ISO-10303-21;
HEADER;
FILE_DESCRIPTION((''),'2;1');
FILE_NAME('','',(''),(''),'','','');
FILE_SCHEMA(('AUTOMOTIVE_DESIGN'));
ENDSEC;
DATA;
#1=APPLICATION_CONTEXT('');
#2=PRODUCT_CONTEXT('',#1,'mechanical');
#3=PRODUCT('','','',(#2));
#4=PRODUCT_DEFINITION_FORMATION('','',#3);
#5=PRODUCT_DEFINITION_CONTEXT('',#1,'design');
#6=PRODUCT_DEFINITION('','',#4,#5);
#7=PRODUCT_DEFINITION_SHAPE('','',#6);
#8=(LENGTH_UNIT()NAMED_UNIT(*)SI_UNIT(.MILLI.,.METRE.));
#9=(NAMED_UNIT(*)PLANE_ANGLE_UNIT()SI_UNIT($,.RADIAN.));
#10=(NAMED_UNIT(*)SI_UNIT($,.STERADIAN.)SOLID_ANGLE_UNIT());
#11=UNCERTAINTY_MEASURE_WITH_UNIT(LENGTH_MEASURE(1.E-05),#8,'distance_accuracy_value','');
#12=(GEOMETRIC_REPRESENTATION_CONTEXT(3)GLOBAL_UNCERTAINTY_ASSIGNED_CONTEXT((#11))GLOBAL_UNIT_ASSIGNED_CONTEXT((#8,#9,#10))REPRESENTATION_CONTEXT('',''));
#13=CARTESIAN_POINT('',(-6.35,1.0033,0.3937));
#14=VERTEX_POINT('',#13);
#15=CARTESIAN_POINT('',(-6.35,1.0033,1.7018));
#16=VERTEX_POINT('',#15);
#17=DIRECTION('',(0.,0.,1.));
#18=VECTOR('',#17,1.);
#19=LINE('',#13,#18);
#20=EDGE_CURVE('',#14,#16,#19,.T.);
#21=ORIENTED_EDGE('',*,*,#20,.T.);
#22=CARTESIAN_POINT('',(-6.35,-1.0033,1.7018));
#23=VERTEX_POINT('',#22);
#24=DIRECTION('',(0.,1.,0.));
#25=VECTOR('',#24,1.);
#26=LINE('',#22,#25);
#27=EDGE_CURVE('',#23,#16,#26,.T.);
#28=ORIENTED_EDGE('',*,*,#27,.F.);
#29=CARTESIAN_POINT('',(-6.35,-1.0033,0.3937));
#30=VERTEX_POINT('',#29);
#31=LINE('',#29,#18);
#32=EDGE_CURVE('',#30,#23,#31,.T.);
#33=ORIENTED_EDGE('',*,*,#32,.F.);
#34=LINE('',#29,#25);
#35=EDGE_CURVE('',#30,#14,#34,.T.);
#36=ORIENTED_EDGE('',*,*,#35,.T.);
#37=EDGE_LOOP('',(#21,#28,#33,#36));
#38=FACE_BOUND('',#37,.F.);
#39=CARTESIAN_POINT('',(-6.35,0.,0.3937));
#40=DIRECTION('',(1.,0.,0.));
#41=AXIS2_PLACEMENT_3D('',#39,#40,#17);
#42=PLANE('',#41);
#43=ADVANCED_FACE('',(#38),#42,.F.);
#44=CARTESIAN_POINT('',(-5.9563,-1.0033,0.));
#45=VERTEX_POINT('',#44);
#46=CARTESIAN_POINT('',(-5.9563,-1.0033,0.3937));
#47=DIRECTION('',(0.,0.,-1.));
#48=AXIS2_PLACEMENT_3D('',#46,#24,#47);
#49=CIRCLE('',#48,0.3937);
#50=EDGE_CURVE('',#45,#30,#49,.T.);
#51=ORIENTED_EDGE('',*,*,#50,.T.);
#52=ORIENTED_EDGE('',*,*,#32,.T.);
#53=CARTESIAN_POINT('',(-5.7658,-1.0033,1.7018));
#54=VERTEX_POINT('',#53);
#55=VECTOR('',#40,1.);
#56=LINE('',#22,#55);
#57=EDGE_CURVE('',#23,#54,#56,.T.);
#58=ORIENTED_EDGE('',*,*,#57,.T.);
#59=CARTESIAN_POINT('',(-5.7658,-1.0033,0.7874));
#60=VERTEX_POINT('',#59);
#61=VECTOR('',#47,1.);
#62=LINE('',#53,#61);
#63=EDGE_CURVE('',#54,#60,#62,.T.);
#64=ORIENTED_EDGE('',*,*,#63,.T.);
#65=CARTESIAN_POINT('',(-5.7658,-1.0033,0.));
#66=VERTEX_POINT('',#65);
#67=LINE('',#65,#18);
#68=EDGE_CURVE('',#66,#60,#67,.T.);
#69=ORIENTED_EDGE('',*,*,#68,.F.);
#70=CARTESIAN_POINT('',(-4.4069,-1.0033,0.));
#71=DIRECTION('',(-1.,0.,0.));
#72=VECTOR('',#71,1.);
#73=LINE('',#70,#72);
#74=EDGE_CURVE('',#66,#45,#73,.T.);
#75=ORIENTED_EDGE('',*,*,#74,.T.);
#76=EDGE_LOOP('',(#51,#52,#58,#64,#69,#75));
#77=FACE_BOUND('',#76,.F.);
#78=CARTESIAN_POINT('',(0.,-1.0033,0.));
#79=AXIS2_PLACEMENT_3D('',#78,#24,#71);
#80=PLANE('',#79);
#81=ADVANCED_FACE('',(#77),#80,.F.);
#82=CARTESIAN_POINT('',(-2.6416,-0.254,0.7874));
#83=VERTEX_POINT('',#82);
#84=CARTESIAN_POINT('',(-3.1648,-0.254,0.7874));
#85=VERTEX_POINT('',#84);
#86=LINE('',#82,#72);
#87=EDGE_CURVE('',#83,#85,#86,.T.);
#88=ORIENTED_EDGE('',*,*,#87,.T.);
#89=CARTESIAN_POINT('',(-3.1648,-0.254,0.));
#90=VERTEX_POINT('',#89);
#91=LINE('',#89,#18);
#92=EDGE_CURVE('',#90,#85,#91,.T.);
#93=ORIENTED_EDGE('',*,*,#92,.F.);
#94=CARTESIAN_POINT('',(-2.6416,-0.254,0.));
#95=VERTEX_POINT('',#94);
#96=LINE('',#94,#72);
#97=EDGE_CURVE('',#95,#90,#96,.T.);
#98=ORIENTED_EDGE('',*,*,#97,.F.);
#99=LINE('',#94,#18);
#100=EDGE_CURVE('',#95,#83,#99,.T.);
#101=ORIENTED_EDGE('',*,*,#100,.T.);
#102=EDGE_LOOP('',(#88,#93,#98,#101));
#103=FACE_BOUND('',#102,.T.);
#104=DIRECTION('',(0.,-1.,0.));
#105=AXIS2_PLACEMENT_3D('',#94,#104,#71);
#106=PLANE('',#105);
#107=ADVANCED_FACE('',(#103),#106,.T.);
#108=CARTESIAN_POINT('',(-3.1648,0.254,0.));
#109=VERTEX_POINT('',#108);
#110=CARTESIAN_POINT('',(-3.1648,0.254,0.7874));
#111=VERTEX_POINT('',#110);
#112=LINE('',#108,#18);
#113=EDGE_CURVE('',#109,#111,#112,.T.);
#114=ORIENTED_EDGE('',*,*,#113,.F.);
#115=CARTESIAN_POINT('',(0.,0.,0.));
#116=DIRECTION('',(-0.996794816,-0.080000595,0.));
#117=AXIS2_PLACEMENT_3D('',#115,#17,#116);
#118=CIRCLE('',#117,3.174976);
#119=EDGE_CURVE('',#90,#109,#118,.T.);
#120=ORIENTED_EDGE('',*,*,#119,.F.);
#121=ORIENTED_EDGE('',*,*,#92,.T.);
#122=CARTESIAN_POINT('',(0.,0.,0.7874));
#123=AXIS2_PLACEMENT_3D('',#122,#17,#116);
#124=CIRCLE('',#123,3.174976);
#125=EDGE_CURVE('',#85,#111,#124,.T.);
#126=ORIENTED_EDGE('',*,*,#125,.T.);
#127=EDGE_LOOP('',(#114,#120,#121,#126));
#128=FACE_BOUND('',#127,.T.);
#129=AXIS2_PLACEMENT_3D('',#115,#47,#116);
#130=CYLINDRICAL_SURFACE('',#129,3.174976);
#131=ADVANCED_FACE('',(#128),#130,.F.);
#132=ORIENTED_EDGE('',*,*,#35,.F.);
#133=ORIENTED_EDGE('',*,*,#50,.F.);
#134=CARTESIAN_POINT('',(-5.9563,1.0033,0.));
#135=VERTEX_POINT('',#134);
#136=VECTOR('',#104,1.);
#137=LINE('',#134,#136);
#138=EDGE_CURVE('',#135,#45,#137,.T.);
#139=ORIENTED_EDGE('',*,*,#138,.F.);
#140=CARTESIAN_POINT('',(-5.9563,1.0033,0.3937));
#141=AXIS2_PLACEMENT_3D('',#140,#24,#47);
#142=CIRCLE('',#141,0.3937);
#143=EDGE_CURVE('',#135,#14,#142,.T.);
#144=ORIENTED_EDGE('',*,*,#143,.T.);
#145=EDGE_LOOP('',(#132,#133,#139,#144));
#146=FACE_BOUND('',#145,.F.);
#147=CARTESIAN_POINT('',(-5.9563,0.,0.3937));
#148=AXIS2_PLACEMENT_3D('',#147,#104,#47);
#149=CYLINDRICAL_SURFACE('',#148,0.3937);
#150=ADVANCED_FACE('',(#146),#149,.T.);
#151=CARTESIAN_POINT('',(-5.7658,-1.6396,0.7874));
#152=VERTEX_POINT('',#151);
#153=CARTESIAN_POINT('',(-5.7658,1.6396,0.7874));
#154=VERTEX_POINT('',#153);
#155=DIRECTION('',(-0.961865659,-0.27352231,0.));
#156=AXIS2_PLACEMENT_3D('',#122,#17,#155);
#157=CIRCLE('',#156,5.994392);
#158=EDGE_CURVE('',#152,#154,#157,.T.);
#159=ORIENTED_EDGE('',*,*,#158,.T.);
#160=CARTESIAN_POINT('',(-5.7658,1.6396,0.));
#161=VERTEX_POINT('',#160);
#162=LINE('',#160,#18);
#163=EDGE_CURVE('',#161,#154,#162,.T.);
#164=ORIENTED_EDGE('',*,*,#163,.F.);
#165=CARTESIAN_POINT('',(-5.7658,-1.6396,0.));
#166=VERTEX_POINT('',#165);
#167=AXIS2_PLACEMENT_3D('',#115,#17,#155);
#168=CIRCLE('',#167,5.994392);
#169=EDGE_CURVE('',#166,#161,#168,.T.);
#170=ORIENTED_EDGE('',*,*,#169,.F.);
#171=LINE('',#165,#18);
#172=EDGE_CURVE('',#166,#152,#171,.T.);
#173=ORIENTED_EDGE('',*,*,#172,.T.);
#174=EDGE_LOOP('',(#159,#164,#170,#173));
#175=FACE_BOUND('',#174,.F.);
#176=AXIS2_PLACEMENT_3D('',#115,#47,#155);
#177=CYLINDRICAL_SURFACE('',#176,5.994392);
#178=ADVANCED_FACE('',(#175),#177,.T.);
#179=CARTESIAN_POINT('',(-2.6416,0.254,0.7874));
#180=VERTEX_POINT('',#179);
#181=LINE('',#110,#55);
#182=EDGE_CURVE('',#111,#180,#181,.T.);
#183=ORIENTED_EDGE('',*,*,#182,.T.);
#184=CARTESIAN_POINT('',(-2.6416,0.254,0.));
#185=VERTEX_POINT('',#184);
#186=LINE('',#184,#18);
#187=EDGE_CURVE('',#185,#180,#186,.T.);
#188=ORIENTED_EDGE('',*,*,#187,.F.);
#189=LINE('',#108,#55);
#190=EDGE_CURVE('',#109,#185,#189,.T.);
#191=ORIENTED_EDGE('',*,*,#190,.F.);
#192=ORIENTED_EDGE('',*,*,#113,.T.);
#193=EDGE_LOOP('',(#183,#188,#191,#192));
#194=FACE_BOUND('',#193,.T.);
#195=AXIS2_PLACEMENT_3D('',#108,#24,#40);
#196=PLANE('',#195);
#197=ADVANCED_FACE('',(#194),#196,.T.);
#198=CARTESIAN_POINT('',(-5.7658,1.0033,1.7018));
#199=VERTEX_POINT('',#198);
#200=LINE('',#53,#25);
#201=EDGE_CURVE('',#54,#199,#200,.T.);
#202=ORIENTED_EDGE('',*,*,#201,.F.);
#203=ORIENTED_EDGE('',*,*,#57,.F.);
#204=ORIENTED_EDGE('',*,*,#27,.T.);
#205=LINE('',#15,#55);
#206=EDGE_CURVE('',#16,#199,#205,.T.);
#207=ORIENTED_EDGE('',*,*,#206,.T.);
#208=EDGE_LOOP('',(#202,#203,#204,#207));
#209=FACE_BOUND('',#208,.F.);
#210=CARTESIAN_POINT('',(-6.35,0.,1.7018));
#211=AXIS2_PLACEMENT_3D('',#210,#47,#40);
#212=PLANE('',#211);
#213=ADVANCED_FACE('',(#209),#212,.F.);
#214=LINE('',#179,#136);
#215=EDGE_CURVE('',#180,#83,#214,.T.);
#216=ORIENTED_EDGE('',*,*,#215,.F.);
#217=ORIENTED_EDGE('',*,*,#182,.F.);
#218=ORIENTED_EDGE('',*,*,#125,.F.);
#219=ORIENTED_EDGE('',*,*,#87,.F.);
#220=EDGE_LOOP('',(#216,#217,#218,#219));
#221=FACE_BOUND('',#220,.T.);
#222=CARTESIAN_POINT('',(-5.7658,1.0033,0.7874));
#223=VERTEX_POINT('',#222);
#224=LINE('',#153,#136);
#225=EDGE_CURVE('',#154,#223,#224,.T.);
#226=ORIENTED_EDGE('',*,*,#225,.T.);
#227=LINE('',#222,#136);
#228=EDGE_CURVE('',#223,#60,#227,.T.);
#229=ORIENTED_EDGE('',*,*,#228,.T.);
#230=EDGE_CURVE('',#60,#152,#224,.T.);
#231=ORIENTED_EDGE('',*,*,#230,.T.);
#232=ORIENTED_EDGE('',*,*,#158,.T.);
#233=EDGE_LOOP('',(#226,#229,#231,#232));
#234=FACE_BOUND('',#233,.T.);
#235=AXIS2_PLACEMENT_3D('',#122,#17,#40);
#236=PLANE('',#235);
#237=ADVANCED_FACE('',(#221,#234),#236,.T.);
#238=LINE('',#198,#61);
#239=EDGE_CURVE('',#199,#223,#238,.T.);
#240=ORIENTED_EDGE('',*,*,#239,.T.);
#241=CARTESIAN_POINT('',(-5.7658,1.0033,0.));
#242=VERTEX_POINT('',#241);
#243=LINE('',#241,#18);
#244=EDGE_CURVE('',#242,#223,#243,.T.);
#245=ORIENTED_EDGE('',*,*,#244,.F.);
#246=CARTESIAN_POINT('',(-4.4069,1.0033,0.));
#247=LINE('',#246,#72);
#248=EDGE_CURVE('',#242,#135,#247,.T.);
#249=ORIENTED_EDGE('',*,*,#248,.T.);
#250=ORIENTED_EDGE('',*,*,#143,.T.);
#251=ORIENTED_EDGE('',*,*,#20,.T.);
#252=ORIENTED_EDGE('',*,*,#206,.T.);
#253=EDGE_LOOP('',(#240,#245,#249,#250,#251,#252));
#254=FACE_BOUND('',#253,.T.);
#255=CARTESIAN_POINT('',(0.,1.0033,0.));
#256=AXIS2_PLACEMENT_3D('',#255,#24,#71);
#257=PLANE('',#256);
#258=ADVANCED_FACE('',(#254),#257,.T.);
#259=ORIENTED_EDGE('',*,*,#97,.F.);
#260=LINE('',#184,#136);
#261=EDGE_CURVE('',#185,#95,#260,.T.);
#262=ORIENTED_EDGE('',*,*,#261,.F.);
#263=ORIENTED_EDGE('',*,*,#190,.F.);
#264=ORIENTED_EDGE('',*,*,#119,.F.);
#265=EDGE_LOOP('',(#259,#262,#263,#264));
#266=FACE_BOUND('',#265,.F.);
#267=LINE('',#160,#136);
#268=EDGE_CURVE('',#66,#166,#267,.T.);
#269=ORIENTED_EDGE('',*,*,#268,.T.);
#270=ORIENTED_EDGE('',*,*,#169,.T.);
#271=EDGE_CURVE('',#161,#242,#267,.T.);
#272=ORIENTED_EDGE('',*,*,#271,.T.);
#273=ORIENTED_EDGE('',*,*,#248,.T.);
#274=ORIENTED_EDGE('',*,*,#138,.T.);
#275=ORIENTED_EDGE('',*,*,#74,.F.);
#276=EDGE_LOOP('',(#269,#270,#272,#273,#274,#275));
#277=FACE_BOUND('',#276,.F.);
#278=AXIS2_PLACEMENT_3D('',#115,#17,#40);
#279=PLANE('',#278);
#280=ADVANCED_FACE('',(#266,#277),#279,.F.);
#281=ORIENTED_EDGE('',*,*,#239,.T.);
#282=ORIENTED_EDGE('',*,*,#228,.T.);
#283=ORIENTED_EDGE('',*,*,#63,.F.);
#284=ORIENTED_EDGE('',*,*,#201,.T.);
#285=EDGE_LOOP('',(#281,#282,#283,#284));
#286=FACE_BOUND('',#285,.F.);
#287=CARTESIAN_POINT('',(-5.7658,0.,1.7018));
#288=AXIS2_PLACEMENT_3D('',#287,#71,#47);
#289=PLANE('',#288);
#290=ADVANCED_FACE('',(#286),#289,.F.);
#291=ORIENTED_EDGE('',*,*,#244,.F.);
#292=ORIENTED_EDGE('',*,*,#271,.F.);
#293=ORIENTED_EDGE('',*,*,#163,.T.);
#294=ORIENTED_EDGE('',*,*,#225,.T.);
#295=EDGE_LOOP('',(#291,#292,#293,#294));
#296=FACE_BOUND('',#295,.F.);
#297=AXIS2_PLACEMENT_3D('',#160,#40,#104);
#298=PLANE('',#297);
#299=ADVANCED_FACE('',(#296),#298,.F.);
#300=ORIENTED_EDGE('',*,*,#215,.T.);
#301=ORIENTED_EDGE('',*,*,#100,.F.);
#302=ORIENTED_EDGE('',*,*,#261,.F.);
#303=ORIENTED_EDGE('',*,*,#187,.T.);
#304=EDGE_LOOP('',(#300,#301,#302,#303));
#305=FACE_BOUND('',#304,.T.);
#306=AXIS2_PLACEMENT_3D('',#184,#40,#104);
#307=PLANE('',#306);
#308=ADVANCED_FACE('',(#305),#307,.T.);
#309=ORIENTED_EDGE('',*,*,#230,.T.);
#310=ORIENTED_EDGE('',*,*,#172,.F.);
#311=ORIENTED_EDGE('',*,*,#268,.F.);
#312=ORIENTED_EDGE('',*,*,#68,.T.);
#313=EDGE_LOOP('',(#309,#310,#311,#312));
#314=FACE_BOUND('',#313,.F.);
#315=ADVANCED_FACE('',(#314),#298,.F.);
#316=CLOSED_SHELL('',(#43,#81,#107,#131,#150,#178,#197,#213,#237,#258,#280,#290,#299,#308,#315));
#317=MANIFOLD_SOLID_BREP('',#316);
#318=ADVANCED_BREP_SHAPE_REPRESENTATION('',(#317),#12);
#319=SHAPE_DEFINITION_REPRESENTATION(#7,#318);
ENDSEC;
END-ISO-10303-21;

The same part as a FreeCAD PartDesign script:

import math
import FreeCAD as App
import Part
import Sketcher
from FreeCAD import Vector
Q = App.Units.Quantity

doc = App.newDocument("Part")
params = doc.addObject("Spreadsheet::Sheet", "Params")
for row, (alias, value) in enumerate([
    ("sketch1_radius", "0.236 in"),
    ("sketch1_radius2", "0.125 in"),
    ("sketch1_height", "0.02 in"),
    ("pad1_length", "0.031 in"),
    ("sketch2_width", "0.023 in"),
    ("sketch2_width2", "0.061 in"),
    ("sketch2_height", "0.036 in"),
    ("sketch2_height2", "0.031 in"),
    ("pad2_length", "0.079 in"),
], start=1):
    params.set(f"A{row}", alias)
    params.set(f"B{row}", "=" + value)
    params.setAlias(f"B{row}", alias)

body = doc.addObject("PartDesign::Body", "Body")

# Sketch on XY plane
sketch1 = body.newObject("Sketcher::SketchObject", "Sketch")
sketch1.AttachmentSupport = (doc.getObject("XY_Plane"), [""])
sketch1.MapMode = "FlatFace"
sketch1.addGeometry([
    Part.ArcOfCircle(Part.Circle(Vector(0, 0, 0), Vector(0, 0, 1), 5.994392), math.radians(-164.126027), math.radians(164.126027)),  # 0
    Part.LineSegment(Vector(-5.7658, 1.6396, 0), Vector(-5.7658, -1.6396, 0)),  # 1
    Part.ArcOfCircle(Part.Circle(Vector(0, 0, 0), Vector(0, 0, 1), 3.174976), math.radians(-175.4114), math.radians(175.4114)),  # 2
    Part.LineSegment(Vector(-3.1648, -0.254, 0), Vector(-2.6416, -0.254, 0)),  # 3
    Part.LineSegment(Vector(-2.6416, -0.254, 0), Vector(-2.6416, 0.254, 0)),  # 4
    Part.LineSegment(Vector(-2.6416, 0.254, 0), Vector(-3.1648, 0.254, 0)),  # 5
], False)
sketch1.addConstraint([
    Sketcher.Constraint("Coincident", 0, 1, 1, 2),
    Sketcher.Constraint("Coincident", 1, 1, 0, 2),
    Sketcher.Constraint("Coincident", 2, 1, 3, 1),
    Sketcher.Constraint("Coincident", 3, 2, 4, 1),
    Sketcher.Constraint("Coincident", 4, 2, 5, 1),
    Sketcher.Constraint("Coincident", 5, 2, 2, 2),
    Sketcher.Constraint("Vertical", 1),
    Sketcher.Constraint("Horizontal", 3),
    Sketcher.Constraint("Vertical", 4),
    Sketcher.Constraint("Horizontal", 5),
    Sketcher.Constraint("Coincident", 0, 3, -1, 1),
    Sketcher.Constraint("Coincident", 2, 3, -1, 1),
    Sketcher.Constraint("Vertical", 2, 1, 5, 2),
    Sketcher.Constraint("Radius", 0, Q("0.236 in")),
    Sketcher.Constraint("Radius", 2, Q("0.125 in")),
    Sketcher.Constraint("DistanceY", 4, 1, 4, 2, Q("0.02 in")),
    Sketcher.Constraint("DistanceX", 3, 1, 3, 2, Q("0.0206 in")),
    Sketcher.Constraint("DistanceY", 1, 2, 1, 1, Q("0.1291 in")),
])
sketch1.setExpression("Constraints[13]", "Params.sketch1_radius")
sketch1.setExpression("Constraints[14]", "Params.sketch1_radius2")
sketch1.setExpression("Constraints[15]", "Params.sketch1_height")
pad1 = body.newObject("PartDesign::Pad", "Pad")
pad1.Profile = sketch1
pad1.setExpression("Length", "Params.pad1_length")

# Sketch on XZ plane
sketch2 = body.newObject("Sketcher::SketchObject", "Sketch001")
sketch2.AttachmentSupport = (doc.getObject("XZ_Plane"), [""])
sketch2.MapMode = "FlatFace"
sketch2.addGeometry([
    Part.ArcOfCircle(Part.Circle(Vector(-5.9563, 0.3937, 0), Vector(0, 0, 1), 0.3937), math.radians(180), math.radians(270)),  # 0
    Part.LineSegment(Vector(-6.35, 0.3937, 0), Vector(-6.35, 1.7018, 0)),  # 1
    Part.LineSegment(Vector(-6.35, 1.7018, 0), Vector(-5.7658, 1.7018, 0)),  # 2
    Part.LineSegment(Vector(-5.7658, 1.7018, 0), Vector(-5.7658, 0.7874, 0)),  # 3
    Part.LineSegment(Vector(-5.7658, 0.7874, 0), Vector(-4.4069, 0.7874, 0)),  # 4
    Part.LineSegment(Vector(-4.4069, 0.7874, 0), Vector(-4.4069, 0, 0)),  # 5
    Part.LineSegment(Vector(-4.4069, 0, 0), Vector(-5.9563, 0, 0)),  # 6
], False)
sketch2.addConstraint([
    Sketcher.Constraint("Tangent", 0, 1, 1, 1),
    Sketcher.Constraint("Coincident", 1, 2, 2, 1),
    Sketcher.Constraint("Coincident", 2, 2, 3, 1),
    Sketcher.Constraint("Coincident", 3, 2, 4, 1),
    Sketcher.Constraint("Coincident", 4, 2, 5, 1),
    Sketcher.Constraint("Coincident", 5, 2, 6, 1),
    Sketcher.Constraint("Tangent", 6, 2, 0, 2),
    Sketcher.Constraint("Vertical", 1),
    Sketcher.Constraint("Horizontal", 2),
    Sketcher.Constraint("Vertical", 3),
    Sketcher.Constraint("Horizontal", 4),
    Sketcher.Constraint("Vertical", 5),
    Sketcher.Constraint("Horizontal", 6),
    Sketcher.Constraint("PointOnObject", 5, 2, -1),
    Sketcher.Constraint("Radius", 0, Q("0.0155 in")),
    Sketcher.Constraint("DistanceX", 2, 1, 2, 2, Q("0.023 in")),
    Sketcher.Constraint("DistanceX", 6, 2, 6, 1, Q("0.061 in")),
    Sketcher.Constraint("DistanceY", 3, 2, 3, 1, Q("0.036 in")),
    Sketcher.Constraint("DistanceY", 5, 2, 5, 1, Q("0.031 in")),
    Sketcher.Constraint("DistanceX", 0, 1, -1, 1, Q("0.25 in")),
])
sketch2.setExpression("Constraints[15]", "Params.sketch2_width")
sketch2.setExpression("Constraints[16]", "Params.sketch2_width2")
sketch2.setExpression("Constraints[17]", "Params.sketch2_height")
sketch2.setExpression("Constraints[18]", "Params.sketch2_height2")
pad2 = body.newObject("PartDesign::Pad", "Pad001")
pad2.Profile = sketch2
pad2.setExpression("Length", "Params.pad2_length")
pad2.Midplane = True

doc.recompute()
